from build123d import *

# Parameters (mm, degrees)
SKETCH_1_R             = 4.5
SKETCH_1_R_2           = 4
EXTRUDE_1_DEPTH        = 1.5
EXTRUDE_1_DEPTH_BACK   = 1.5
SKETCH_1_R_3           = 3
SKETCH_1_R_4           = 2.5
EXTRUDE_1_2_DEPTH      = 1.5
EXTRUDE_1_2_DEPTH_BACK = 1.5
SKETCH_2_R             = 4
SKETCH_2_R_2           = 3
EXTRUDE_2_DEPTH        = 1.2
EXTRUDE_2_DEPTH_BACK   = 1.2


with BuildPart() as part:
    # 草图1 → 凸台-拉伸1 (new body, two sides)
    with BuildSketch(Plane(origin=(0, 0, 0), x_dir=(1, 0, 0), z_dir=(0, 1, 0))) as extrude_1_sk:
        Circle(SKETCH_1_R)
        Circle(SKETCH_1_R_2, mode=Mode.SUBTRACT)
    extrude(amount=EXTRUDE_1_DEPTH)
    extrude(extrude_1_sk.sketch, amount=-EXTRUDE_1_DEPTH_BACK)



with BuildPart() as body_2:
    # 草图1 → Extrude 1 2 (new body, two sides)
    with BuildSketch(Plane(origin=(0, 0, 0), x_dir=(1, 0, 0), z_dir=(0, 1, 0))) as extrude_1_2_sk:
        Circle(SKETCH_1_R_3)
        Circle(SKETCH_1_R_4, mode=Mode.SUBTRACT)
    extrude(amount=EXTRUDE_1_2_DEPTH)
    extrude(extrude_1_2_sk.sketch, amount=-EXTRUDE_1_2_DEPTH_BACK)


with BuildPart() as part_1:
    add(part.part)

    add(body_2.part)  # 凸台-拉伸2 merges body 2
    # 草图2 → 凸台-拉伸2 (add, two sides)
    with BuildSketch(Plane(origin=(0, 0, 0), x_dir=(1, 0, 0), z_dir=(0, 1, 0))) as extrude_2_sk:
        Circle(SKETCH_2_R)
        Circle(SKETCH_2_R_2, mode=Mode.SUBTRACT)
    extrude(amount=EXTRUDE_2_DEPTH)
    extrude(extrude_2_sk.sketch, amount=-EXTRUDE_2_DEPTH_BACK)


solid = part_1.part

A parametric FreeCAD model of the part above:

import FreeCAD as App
import Part
import Sketcher

V = App.Vector
Q = App.Units.Quantity

doc = App.newDocument("Part")
body = doc.addObject("PartDesign::Body", "Body")

sketch1 = body.newObject("Sketcher::SketchObject", "Sketch")
sketch1.AttachmentSupport = (doc.getObject("XZ_Plane"), [""])
sketch1.MapMode = "FlatFace"
sketch1.addGeometry(Part.Circle(V(0, 0, 0), V(0, 0, 1), 4.5), False)
sketch1.addGeometry(Part.Circle(V(0, 0, 0), V(0, 0, 1), 4), False)
sketch1.addConstraint(Sketcher.Constraint("Coincident", 0, 3, -1, 1))
sketch1.addConstraint(Sketcher.Constraint("Coincident", 1, 3, -1, 1))
sketch1.addConstraint(Sketcher.Constraint("Diameter", 0, Q("9 mm")))
sketch1.addConstraint(Sketcher.Constraint("Diameter", 1, Q("8 mm")))
pad1 = body.newObject("PartDesign::Pad", "Pad")
pad1.Profile = sketch1
pad1.Type = "TwoLengths"
pad1.Length = 1.5
pad1.Length2 = 1.5
pad1.Reversed = True
body2 = doc.addObject("PartDesign::Body", "Body001")

sketch2 = body2.newObject("Sketcher::SketchObject", "Sketch001")
sketch2.AttachmentSupport = (doc.getObject("XZ_Plane001"), [""])
sketch2.MapMode = "FlatFace"
sketch2.addGeometry(Part.Circle(V(0, 0, 0), V(0, 0, 1), 3), False)
sketch2.addGeometry(Part.Circle(V(0, 0, 0), V(0, 0, 1), 2.5), False)
sketch2.addConstraint(Sketcher.Constraint("Coincident", 0, 3, -1, 1))
sketch2.addConstraint(Sketcher.Constraint("Coincident", 1, 3, -1, 1))
sketch2.addConstraint(Sketcher.Constraint("Diameter", 0, Q("6 mm")))
sketch2.addConstraint(Sketcher.Constraint("Diameter", 1, Q("5 mm")))
pad2 = body2.newObject("PartDesign::Pad", "Pad001")
pad2.Profile = sketch2
pad2.Type = "TwoLengths"
pad2.Length = 1.5
pad2.Length2 = 1.5
pad2.Reversed = True
body.AllowCompound = True
doc.recompute()

boolean = body.newObject("PartDesign::Boolean", "Boolean")
boolean.Type = "Fuse"
boolean.addObjects([body2])

sketch3 = body.newObject("Sketcher::SketchObject", "Sketch002")
sketch3.AttachmentSupport = (doc.getObject("XZ_Plane"), [""])
sketch3.MapMode = "FlatFace"
sketch3.addGeometry(Part.Circle(V(0, 0, 0), V(0, 0, 1), 4), False)
sketch3.addGeometry(Part.Circle(V(0, 0, 0), V(0, 0, 1), 3), False)
sketch3.addConstraint(Sketcher.Constraint("Coincident", 0, 3, -1, 1))
sketch3.addConstraint(Sketcher.Constraint("Coincident", 1, 3, -1, 1))
sketch3.addConstraint(Sketcher.Constraint("Diameter", 0, Q("8 mm")))
sketch3.addConstraint(Sketcher.Constraint("Diameter", 1, Q("6 mm")))
pad3 = body.newObject("PartDesign::Pad", "Pad002")
pad3.Profile = sketch3
pad3.Type = "TwoLengths"
pad3.Length = 1.2
pad3.Length2 = 1.2
pad3.Reversed = True

doc.recompute()
